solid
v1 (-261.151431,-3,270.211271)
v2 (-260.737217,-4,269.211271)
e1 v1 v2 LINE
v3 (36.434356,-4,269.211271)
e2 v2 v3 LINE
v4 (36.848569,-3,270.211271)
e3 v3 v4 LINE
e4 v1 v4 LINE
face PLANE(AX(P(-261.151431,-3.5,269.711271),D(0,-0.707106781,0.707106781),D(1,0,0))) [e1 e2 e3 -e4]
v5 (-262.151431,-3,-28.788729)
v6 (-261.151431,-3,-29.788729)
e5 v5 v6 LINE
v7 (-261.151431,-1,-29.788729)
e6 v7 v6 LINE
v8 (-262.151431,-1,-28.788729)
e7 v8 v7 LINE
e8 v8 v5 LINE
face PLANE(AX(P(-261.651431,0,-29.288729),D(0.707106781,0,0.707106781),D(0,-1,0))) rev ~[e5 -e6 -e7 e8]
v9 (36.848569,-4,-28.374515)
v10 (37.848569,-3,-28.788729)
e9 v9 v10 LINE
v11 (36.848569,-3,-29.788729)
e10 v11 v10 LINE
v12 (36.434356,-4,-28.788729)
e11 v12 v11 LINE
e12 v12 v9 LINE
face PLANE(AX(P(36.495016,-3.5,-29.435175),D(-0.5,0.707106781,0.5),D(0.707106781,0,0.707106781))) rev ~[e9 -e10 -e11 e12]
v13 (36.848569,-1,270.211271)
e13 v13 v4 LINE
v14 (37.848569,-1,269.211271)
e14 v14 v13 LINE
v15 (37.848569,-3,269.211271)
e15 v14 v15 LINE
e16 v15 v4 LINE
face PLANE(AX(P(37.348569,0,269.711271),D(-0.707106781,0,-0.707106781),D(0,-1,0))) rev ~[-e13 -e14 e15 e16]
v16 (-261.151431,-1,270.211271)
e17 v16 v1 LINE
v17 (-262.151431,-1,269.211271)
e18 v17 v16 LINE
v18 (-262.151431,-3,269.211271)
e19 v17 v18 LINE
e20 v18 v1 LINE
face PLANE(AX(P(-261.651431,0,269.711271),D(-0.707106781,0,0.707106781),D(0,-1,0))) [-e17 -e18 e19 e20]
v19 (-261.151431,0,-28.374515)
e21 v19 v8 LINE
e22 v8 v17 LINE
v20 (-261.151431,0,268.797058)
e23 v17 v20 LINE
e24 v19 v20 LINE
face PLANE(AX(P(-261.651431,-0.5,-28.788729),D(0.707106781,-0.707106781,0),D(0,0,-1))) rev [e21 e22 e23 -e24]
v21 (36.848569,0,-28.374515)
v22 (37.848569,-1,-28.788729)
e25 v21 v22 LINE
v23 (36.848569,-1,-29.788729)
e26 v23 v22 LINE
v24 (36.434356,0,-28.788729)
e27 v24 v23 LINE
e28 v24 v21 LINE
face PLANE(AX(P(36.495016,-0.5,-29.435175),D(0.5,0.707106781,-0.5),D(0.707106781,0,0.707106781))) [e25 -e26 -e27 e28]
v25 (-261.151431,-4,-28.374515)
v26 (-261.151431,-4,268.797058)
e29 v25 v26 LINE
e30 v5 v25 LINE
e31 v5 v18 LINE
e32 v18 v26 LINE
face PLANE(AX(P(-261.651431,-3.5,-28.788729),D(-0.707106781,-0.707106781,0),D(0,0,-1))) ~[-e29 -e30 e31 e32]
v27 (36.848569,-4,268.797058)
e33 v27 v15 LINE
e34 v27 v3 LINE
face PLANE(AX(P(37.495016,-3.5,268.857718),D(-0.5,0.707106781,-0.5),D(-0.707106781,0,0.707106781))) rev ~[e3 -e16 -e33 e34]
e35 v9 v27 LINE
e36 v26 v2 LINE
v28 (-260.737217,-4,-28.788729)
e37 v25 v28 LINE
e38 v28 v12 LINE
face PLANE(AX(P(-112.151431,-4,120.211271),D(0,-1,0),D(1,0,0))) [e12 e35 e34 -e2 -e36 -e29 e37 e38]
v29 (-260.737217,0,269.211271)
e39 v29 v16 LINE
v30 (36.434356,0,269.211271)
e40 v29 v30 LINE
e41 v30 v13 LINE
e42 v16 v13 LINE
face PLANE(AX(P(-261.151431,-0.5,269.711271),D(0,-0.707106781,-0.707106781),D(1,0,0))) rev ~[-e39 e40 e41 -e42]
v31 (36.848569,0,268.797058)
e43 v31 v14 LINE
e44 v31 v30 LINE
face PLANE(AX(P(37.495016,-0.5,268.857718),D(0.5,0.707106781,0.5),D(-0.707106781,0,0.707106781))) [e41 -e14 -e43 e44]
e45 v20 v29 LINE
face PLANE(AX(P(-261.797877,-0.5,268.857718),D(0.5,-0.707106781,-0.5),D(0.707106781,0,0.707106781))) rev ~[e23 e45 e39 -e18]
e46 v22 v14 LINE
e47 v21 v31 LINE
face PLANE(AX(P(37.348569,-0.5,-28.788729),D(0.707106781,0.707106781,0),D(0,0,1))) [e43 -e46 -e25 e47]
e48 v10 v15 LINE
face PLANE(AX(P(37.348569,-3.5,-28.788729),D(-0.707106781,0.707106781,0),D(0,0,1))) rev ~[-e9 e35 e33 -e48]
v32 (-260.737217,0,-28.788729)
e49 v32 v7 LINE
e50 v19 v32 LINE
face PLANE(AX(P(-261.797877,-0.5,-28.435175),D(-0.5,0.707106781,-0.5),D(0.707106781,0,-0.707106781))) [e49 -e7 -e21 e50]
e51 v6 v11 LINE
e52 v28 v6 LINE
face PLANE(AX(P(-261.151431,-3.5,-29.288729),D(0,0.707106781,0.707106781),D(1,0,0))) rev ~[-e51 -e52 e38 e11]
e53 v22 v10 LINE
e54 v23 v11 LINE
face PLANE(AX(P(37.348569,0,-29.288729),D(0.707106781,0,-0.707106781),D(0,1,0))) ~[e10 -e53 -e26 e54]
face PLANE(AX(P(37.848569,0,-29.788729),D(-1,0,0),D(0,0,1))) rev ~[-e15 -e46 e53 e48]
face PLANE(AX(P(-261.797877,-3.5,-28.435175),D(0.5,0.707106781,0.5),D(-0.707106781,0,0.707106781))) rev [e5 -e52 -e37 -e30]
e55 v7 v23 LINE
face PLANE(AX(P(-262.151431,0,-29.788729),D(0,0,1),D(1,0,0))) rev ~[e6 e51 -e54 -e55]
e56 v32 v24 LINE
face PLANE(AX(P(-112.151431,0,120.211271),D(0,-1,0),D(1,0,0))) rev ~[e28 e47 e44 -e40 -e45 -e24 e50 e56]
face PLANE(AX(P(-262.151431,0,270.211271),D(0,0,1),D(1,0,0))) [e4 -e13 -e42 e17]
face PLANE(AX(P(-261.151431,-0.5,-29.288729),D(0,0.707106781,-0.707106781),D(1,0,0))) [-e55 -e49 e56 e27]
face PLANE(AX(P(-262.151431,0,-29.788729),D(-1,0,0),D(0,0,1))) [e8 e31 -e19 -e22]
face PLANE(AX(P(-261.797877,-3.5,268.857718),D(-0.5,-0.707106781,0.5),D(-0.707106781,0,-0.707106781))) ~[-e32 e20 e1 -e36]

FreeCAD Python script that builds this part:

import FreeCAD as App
import Part
import Sketcher


def edges_at(feature, points):
    """Names of the edges that pass closest to the given points."""
    edges = feature.Shape.Edges
    near = lambda p: min(range(len(edges)), key=lambda i: edges[i].distToShape(Part.Vertex(*p))[0])
    return sorted({f"Edge{near(p) + 1}" for p in points})

doc = App.newDocument("Part")
body = doc.addObject("PartDesign::Body", "Body")

sketch1 = body.newObject("Sketcher::SketchObject", "Sketch")
sketch1.AttachmentSupport = (doc.getObject("XZ_Plane"), [""])
sketch1.MapMode = "FlatFace"
sketch1.addGeometry([
    Part.LineSegment(App.Vector(-262, 270, 0), App.Vector(-262, -30, 0)),
    Part.LineSegment(App.Vector(-262, -30, 0), App.Vector(38, -30, 0)),
    Part.LineSegment(App.Vector(38, -30, 0), App.Vector(38, 270, 0)),
    Part.LineSegment(App.Vector(38, 270, 0), App.Vector(-262, 270, 0)),
], False)
sketch1.addConstraint([
    Sketcher.Constraint("Coincident", 0, 2, 1, 1),
    Sketcher.Constraint("Coincident", 1, 2, 2, 1),
    Sketcher.Constraint("Coincident", 2, 2, 3, 1),
    Sketcher.Constraint("Coincident", 3, 2, 0, 1),
    Sketcher.Constraint("Vertical", 0),
    Sketcher.Constraint("Horizontal", 1),
    Sketcher.Constraint("Vertical", 2),
    Sketcher.Constraint("Horizontal", 3),
    Sketcher.Constraint("Equal", 3, 0),
    Sketcher.Constraint("DistanceX", 1, 1, 1, 2, 300.0),
    Sketcher.Constraint("DistanceX", 0, 2, -1, 1, 262.151431),
    Sketcher.Constraint("DistanceY", 0, 2, -1, 1, 29.788729),
])
pad1 = body.newObject("PartDesign::Pad", "Pad")
pad1.Profile = sketch1
pad1.Length = 4
doc.recompute()

chamfer = body.newObject("PartDesign::Chamfer", "Chamfer")
chamfer.Base = (pad1, edges_at(pad1, [
    (-262.151, -2, 270.211),
    (37.849, -2, 270.211),
    (37.849, -2, -29.789),
    (-262.151, -2, -29.789),
]))
chamfer.Size = 1
doc.recompute()

chamfer2 = body.newObject("PartDesign::Chamfer", "Chamfer001")
chamfer2.Base = (chamfer, edges_at(chamfer, [
    (-112.151, -4, -29.789),
    (-261.651, -4, -29.289),
    (-262.151, -4, 120.211),
    (37.349, -4, -29.289),
    (37.849, -4, 120.211),
    (37.849, 0, 120.211),
    (37.349, 0, -29.289),
    (-112.151, 0, -29.789),
    (-261.651, 0, -29.289),
    (-262.151, 0, 120.211),
    (-261.651, -4, 269.711),
    (-261.651, 0, 269.711),
    (-112.151, 0, 270.211),
    (-112.151, -4, 270.211),
    (37.349, -4, 269.711),
    (37.349, 0, 269.711),
]))
chamfer2.Size = 1

doc.recompute()
